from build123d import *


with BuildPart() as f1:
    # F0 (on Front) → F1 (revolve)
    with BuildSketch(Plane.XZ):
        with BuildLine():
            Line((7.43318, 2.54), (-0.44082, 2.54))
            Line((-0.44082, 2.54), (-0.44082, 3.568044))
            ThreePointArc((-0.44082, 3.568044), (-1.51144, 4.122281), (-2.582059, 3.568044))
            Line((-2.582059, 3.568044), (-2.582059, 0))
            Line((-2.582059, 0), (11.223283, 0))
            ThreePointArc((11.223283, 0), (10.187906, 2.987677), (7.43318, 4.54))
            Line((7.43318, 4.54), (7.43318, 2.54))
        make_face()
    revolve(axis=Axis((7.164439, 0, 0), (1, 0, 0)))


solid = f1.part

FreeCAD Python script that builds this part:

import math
import FreeCAD as App
import Part
import Sketcher

V = App.Vector
Q = App.Units.Quantity

doc = App.newDocument("Part")
body = doc.addObject("PartDesign::Body", "Body")

# Sketch on XZ plane
sketch1 = body.newObject("Sketcher::SketchObject", "Sketch")
sketch1.AttachmentSupport = (doc.getObject("XZ_Plane"), [""])
sketch1.MapMode = "FlatFace"
sketch1.addGeometry(Part.LineSegment(V(7.4, 2.5, 0), V(-0.4, 2.5, 0)), False)
sketch1.addGeometry(Part.LineSegment(V(-0.4, 2.5, 0), V(-0.4, 3.6, 0)), False)
sketch1.addGeometry(Part.ArcOfCircle(Part.Circle(V(-1.5, 2.8, 0), V(0, 0, 1), 1.3), math.radians(35), math.radians(145)), False)
sketch1.addGeometry(Part.LineSegment(V(-2.6, 3.6, 0), V(-2.6, 0, 0)), False)
sketch1.addGeometry(Part.LineSegment(V(-2.6, 0, 0), V(11.2, 0, 0)), False)
sketch1.addGeometry(Part.ArcOfCircle(Part.Circle(V(6.8, 0.1, 0), V(0, 0, 1), 4.5), math.radians(-2), math.radians(81)), False)
sketch1.addGeometry(Part.LineSegment(V(7.4, 4.5, 0), V(7.4, 2.5, 0)), False)
sketch1.addConstraint(Sketcher.Constraint("Coincident", 0, 2, 1, 1))
sketch1.addConstraint(Sketcher.Constraint("Coincident", 1, 2, 2, 1))
sketch1.addConstraint(Sketcher.Constraint("Coincident", 2, 2, 3, 1))
sketch1.addConstraint(Sketcher.Constraint("Coincident", 3, 2, 4, 1))
sketch1.addConstraint(Sketcher.Constraint("Coincident", 4, 2, 5, 1))
sketch1.addConstraint(Sketcher.Constraint("Coincident", 5, 2, 6, 1))
sketch1.addConstraint(Sketcher.Constraint("Coincident", 6, 2, 0, 1))
sketch1.addConstraint(Sketcher.Constraint("Horizontal", 0))
sketch1.addConstraint(Sketcher.Constraint("Vertical", 1))
sketch1.addConstraint(Sketcher.Constraint("Vertical", 3))
sketch1.addConstraint(Sketcher.Constraint("Horizontal", 4))
sketch1.addConstraint(Sketcher.Constraint("Vertical", 6))
sketch1.addConstraint(Sketcher.Constraint("PointOnObject", 3, 2, -1))
sketch1.addConstraint(Sketcher.Constraint("Horizontal", 1, 2, 2, 2))
sketch1.addConstraint(Sketcher.Constraint("DistanceY", 6, 2, 6, 1, Q("2 mm")))
sketch1.addConstraint(Sketcher.Constraint("DistanceX", 0, 2, 0, 1, Q("7.874 mm")))
sketch1.addConstraint(Sketcher.Constraint("DistanceY", -1, 1, 0, 2, Q("2.54 mm")))
sketch1.addConstraint(Sketcher.Constraint("Radius", 2, Q("1.311176 mm")))
sketch1.addConstraint(Sketcher.Constraint("Radius", 5, Q("4.464024 mm")))
sketch1.addConstraint(Sketcher.Constraint("DistanceX", 2, 3, 5, 3, Q("8.272501 mm")))
sketch1.addConstraint(Sketcher.Constraint("DistanceX", 4, 1, 4, 2, Q("13.805342 mm")))
sketch1.addConstraint(Sketcher.Constraint("DistanceY", 1, 1, 1, 2, Q("1.028044 mm")))
sketch1.addConstraint(Sketcher.Constraint("DistanceX", 2, 3, -1, 1, Q("1.51144 mm")))
revolution = body.newObject("PartDesign::Revolution", "Revolution")
revolution.Profile = sketch1
revolution.ReferenceAxis = (sketch1, ["H_Axis"])
revolution.Angle = 360

doc.recompute()
